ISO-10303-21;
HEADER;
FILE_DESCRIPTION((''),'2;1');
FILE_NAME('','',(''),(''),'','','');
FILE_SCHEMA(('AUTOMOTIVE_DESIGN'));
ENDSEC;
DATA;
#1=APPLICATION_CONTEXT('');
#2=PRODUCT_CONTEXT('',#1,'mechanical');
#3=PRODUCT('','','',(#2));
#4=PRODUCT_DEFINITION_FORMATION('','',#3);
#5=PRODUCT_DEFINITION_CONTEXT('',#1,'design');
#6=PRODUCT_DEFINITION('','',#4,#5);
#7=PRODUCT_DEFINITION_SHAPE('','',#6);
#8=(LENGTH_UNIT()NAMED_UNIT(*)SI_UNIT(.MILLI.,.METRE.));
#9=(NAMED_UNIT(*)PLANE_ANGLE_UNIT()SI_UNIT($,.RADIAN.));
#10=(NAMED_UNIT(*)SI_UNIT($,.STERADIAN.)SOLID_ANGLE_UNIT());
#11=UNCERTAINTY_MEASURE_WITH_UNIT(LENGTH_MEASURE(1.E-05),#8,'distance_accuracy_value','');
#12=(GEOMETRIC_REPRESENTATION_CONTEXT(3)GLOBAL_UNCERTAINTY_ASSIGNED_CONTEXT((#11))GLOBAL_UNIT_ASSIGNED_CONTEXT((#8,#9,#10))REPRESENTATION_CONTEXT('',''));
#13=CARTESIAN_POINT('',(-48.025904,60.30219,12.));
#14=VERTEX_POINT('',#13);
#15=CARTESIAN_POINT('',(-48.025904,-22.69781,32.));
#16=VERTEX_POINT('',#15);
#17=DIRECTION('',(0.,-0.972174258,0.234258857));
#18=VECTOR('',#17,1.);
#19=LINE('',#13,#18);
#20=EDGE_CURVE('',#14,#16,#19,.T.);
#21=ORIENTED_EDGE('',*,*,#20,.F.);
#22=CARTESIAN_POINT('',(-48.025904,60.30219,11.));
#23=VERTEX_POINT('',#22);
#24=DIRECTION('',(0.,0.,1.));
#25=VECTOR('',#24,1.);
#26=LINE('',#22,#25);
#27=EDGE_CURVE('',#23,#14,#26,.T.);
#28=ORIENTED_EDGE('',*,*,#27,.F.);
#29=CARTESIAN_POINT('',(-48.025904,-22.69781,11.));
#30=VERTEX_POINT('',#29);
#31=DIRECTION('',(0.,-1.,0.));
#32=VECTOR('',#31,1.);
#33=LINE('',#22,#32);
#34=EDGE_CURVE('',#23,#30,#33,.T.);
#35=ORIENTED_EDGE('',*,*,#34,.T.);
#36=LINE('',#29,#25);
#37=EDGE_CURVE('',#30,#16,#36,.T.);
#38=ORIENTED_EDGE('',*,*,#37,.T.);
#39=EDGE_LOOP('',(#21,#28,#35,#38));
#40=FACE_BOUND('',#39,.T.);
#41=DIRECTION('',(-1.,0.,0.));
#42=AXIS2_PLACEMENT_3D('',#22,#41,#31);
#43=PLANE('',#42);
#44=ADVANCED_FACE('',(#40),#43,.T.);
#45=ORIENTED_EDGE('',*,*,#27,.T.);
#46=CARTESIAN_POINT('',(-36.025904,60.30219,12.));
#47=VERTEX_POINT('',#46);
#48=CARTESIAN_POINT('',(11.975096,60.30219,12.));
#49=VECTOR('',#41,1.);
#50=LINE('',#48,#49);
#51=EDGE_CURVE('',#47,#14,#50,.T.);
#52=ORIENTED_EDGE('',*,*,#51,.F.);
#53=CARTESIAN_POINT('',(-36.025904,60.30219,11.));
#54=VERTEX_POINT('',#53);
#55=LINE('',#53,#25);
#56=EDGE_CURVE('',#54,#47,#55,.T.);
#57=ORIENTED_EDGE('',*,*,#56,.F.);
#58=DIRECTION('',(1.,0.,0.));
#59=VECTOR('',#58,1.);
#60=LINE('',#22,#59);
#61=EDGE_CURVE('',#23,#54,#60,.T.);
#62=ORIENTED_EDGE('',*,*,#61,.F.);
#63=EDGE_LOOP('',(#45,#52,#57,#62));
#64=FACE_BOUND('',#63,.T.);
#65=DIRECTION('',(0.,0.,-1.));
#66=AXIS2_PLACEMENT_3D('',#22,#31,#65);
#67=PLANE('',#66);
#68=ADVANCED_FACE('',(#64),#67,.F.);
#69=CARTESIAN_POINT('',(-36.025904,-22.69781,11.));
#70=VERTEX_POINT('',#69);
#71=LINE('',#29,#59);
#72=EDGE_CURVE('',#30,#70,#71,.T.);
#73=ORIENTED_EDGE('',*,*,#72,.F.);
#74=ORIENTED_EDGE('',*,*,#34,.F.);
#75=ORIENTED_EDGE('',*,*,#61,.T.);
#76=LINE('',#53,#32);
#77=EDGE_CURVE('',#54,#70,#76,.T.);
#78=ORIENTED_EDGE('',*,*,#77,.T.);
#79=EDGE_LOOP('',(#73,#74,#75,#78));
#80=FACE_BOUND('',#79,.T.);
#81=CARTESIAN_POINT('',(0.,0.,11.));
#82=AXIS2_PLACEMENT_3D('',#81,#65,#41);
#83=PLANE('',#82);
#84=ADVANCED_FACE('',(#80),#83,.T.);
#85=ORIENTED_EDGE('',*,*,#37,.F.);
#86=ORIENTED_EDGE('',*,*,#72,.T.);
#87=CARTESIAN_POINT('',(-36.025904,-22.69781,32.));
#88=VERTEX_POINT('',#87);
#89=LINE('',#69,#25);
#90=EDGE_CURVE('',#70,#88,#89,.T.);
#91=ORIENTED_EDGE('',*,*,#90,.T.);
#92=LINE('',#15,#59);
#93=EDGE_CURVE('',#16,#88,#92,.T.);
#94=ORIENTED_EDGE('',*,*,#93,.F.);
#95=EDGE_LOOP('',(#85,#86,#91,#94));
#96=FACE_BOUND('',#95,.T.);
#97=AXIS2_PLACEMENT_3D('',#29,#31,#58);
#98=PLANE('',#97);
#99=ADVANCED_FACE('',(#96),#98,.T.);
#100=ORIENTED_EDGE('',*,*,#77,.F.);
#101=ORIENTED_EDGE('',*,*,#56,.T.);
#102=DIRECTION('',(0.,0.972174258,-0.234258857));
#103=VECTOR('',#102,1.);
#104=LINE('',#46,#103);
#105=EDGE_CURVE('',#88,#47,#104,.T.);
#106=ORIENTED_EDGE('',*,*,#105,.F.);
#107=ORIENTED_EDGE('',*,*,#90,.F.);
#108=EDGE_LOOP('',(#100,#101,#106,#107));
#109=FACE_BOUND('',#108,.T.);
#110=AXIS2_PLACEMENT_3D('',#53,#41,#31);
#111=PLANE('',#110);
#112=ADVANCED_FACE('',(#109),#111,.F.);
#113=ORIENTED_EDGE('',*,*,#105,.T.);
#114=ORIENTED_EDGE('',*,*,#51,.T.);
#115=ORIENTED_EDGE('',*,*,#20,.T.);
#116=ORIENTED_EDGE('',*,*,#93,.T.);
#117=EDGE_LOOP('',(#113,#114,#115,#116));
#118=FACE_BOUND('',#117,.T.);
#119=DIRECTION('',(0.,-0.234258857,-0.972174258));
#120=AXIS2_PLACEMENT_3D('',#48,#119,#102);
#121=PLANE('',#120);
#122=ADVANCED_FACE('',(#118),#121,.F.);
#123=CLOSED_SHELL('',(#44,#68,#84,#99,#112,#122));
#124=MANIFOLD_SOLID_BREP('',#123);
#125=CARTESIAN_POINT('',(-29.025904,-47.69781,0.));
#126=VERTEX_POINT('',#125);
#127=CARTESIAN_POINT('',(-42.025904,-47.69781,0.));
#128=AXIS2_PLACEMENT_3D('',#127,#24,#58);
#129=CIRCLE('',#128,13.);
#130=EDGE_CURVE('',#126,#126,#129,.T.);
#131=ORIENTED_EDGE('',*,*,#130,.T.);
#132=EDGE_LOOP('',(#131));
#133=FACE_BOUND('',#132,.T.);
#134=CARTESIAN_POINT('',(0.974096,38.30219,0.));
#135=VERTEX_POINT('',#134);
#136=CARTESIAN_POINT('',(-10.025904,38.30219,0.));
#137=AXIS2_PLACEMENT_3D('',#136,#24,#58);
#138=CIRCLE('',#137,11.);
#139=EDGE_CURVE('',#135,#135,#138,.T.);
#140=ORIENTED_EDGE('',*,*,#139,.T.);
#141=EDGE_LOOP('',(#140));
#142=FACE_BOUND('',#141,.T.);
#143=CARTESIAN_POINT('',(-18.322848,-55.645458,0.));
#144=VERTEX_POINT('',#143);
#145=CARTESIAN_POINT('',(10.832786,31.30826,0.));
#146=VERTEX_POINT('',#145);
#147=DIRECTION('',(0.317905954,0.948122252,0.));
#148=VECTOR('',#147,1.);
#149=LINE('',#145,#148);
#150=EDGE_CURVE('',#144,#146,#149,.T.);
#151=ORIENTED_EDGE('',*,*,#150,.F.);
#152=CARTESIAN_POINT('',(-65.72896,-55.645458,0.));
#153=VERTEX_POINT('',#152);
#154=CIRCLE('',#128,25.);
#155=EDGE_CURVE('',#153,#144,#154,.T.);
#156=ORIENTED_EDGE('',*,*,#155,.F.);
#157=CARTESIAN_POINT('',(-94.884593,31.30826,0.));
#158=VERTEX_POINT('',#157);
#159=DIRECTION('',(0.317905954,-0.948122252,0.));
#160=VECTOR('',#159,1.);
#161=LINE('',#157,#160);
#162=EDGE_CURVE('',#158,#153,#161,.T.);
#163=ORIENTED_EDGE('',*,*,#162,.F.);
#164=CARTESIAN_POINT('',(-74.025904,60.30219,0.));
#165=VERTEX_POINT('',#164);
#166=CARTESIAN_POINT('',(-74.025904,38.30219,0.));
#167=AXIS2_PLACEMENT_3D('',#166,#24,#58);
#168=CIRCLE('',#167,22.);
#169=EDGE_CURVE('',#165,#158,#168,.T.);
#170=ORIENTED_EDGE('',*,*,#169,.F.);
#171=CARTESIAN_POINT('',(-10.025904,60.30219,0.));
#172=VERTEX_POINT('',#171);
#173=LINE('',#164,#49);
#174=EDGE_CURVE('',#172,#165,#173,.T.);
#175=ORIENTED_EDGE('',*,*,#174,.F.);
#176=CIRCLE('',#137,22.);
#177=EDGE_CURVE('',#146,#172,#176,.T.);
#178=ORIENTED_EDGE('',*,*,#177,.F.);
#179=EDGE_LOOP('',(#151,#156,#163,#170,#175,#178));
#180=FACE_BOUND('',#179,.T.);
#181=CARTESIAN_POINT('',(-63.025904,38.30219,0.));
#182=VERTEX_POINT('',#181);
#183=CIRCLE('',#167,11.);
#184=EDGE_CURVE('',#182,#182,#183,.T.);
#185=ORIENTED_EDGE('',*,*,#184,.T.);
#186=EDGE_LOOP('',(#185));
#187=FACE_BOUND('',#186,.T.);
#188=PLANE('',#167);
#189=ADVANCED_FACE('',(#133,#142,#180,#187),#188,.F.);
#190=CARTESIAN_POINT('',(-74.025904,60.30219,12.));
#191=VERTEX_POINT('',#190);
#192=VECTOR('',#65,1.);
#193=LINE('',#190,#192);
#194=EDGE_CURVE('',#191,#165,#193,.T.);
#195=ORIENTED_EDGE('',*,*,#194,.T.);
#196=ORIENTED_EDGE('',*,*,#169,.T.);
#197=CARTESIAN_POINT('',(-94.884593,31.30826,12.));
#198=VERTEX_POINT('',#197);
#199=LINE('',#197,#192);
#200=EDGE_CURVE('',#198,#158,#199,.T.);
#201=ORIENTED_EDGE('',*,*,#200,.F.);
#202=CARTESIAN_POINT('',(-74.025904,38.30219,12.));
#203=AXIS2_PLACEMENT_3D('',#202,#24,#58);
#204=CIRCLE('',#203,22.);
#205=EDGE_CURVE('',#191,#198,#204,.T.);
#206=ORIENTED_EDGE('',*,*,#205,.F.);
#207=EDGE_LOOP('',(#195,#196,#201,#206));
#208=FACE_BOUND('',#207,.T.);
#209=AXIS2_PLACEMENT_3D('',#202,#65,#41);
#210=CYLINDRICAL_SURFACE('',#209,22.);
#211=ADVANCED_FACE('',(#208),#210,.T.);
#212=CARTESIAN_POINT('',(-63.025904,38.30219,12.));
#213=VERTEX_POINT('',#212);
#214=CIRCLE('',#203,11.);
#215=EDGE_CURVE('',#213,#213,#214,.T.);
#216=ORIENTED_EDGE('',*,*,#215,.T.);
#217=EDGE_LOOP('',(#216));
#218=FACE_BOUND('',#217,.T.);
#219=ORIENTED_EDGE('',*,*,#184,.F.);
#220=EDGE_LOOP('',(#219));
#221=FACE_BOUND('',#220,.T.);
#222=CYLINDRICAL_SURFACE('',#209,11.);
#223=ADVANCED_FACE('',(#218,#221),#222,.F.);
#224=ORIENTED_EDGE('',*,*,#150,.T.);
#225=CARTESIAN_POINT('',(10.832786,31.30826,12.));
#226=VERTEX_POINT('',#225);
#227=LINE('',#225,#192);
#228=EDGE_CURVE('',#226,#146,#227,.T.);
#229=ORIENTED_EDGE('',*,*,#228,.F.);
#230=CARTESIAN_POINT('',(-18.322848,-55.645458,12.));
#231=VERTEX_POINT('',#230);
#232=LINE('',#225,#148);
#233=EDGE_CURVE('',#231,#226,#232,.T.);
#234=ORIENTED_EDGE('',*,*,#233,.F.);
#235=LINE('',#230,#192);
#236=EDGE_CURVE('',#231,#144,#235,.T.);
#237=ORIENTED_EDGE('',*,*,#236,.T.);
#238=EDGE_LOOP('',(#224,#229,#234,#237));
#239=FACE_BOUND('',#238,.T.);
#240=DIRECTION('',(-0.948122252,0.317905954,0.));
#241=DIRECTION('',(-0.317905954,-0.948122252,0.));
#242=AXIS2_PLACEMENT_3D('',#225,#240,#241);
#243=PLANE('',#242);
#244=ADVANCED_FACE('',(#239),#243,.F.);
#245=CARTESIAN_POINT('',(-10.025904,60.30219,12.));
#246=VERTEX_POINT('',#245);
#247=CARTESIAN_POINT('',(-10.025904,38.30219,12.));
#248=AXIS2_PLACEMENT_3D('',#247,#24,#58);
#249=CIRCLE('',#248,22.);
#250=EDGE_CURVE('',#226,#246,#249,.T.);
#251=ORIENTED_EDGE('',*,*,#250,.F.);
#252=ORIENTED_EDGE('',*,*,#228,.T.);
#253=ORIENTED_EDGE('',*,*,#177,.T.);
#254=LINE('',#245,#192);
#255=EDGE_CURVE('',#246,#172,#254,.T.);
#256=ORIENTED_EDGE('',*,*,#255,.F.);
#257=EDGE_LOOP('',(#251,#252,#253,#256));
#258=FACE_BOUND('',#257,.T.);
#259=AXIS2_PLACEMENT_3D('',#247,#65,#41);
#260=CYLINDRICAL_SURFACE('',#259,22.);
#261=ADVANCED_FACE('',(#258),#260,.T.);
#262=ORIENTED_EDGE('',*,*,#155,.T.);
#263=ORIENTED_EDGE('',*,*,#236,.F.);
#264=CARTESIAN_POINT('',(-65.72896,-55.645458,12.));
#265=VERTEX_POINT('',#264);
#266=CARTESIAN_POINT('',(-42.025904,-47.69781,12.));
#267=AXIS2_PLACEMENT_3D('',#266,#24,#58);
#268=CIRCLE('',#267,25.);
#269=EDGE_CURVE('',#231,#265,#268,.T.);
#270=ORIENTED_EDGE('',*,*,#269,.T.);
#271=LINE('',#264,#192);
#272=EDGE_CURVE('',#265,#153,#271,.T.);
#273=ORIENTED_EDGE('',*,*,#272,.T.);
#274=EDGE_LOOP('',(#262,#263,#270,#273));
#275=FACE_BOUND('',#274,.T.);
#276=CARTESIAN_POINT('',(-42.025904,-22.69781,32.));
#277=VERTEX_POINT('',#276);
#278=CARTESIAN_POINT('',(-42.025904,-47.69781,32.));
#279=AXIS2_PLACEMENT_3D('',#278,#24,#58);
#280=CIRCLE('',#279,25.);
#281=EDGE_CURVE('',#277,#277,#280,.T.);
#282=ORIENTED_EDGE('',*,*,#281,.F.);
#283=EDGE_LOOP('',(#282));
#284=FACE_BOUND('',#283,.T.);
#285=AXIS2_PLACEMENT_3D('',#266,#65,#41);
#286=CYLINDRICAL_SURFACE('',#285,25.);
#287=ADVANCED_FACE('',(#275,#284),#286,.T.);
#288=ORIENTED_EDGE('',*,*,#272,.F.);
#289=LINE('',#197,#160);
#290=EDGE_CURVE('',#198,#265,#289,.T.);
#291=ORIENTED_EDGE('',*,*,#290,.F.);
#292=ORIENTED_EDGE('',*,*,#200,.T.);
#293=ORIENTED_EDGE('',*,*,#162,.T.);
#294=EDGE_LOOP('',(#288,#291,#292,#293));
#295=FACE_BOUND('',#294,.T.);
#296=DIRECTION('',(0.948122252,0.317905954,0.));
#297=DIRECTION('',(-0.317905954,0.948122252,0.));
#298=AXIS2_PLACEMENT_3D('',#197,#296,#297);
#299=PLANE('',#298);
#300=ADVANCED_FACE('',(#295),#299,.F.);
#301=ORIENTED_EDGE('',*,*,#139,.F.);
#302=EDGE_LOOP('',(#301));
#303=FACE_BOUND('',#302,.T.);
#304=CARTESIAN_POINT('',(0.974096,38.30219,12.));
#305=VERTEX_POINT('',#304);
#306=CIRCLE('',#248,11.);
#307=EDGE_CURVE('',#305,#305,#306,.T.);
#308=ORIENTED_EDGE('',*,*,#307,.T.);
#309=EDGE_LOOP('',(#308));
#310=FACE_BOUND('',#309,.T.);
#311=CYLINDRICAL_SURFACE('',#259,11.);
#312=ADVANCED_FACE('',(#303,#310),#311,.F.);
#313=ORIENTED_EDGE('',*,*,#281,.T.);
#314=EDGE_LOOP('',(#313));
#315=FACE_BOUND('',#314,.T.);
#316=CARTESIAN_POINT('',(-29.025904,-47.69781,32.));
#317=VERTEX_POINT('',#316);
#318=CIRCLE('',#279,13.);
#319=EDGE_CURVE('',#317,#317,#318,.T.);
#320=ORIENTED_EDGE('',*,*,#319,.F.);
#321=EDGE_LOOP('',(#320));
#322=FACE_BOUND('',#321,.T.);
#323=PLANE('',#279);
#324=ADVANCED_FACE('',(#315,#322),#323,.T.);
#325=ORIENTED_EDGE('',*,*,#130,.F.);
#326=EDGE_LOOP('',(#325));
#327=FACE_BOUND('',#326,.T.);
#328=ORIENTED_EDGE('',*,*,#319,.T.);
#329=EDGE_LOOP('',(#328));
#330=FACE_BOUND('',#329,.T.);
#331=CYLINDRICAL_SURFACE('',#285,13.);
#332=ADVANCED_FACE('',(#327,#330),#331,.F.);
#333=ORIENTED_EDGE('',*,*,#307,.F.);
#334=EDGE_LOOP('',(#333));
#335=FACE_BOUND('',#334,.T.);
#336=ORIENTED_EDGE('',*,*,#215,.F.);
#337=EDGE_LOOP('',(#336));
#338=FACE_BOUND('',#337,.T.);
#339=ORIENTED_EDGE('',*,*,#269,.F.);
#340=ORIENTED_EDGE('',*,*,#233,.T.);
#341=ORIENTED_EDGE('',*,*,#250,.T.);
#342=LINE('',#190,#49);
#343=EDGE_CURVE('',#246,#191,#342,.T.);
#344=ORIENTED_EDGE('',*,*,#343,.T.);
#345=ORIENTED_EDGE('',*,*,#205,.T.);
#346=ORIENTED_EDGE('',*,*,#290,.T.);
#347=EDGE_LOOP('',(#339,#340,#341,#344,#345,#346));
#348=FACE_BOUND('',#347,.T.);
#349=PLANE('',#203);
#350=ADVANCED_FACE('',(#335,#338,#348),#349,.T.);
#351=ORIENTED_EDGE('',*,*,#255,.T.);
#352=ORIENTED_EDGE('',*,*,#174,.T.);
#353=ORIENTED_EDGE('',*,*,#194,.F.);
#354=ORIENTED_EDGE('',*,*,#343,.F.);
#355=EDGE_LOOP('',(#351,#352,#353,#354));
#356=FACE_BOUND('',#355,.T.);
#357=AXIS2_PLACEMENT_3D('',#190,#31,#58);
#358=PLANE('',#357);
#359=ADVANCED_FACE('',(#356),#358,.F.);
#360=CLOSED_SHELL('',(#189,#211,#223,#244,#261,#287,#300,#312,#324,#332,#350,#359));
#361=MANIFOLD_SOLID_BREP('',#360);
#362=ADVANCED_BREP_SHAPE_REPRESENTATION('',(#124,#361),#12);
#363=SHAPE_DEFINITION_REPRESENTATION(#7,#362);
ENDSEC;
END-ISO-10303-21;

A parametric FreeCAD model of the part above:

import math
import FreeCAD as App
import Part
import Sketcher

V = App.Vector
Q = App.Units.Quantity

doc = App.newDocument("Part")
body = doc.addObject("PartDesign::Body", "Body")

# Sketch on XY plane
sketch1 = body.newObject("Sketcher::SketchObject", "Sketch")
sketch1.AttachmentSupport = (doc.getObject("XY_Plane"), [""])
sketch1.MapMode = "FlatFace"
sketch1.addGeometry([
    Part.LineSegment(V(-10.025904, 60.30219, 0), V(-74.025904, 60.30219, 0)),  # 0
    Part.ArcOfCircle(Part.Circle(V(-74.025904, 38.30219, 0), V(0, 0, 1), 22), math.radians(90), math.radians(198.536333)),  # 1
    Part.LineSegment(V(-94.884593, 31.308259, 0), V(-65.72896, -55.645458, 0)),  # 2
    Part.ArcOfCircle(Part.Circle(V(-42.025904, -47.69781, 0), V(0, 0, 1), 25), math.radians(-161.463667), math.radians(-18.536333)),  # 3
    Part.LineSegment(V(-18.322848, -55.645458, 0), V(10.832786, 31.308259, 0)),  # 4
    Part.ArcOfCircle(Part.Circle(V(-10.025904, 38.30219, 0), V(0, 0, 1), 22), math.radians(-18.536333), math.radians(90)),  # 5
    Part.Circle(V(-42.025904, -47.69781, 0), V(0, 0, 1), 13),  # 6
    Part.Circle(V(-10.025904, 38.30219, 0), V(0, 0, 1), 11),  # 7
    Part.Circle(V(-74.025904, 38.30219, 0), V(0, 0, 1), 11),  # 8
], False)
sketch1.addConstraint([
    Sketcher.Constraint("Tangent", 0, 2, 1, 1),
    Sketcher.Constraint("Tangent", 1, 2, 2, 1),
    Sketcher.Constraint("Tangent", 2, 2, 3, 1),
    Sketcher.Constraint("Tangent", 3, 2, 4, 1),
    Sketcher.Constraint("Tangent", 4, 2, 5, 1),
    Sketcher.Constraint("Tangent", 5, 2, 0, 1),
    Sketcher.Constraint("Horizontal", 0),
    Sketcher.Constraint("Coincident", 6, 3, 3, 3),
    Sketcher.Constraint("Coincident", 7, 3, 5, 3),
    Sketcher.Constraint("Coincident", 8, 3, 1, 3),
    Sketcher.Constraint("Equal", 1, 5),
    Sketcher.Constraint("Equal", 7, 8),
    Sketcher.Constraint("Horizontal", 2, 2, 3, 2),
    Sketcher.Constraint("Diameter", 6, Q("26 mm")),
    Sketcher.Constraint("Diameter", 7, Q("22 mm")),
    Sketcher.Constraint("Radius", 1, Q("22 mm")),
    Sketcher.Constraint("Radius", 3, Q("25 mm")),
    Sketcher.Constraint("DistanceX", 0, 2, 0, 1, Q("64 mm")),
    Sketcher.Constraint("DistanceY", 3, 3, 1, 3, Q("86 mm")),
    Sketcher.Constraint("DistanceY", -1, 1, 1, 3, Q("38.30219 mm")),
    Sketcher.Constraint("DistanceX", 2, 2, -1, 1, Q("65.72896 mm")),
])
pad1 = body.newObject("PartDesign::Pad", "Pad")
pad1.Profile = sketch1
pad1.Length = 12

# Sketch on XY plane
sketch2 = body.newObject("Sketcher::SketchObject", "Sketch001")
sketch2.AttachmentSupport = (doc.getObject("XY_Plane"), [""])
sketch2.MapMode = "FlatFace"
sketch2.AttachmentOffset = App.Placement(V(0, 0, 12), App.Rotation())
sketch2.addGeometry(Part.Circle(V(-42.025904, -47.69781, 0), V(0, 0, 1), 25), False)
sketch2.addConstraint([
    Sketcher.Constraint("Diameter", 0, Q("50 mm")),
    Sketcher.Constraint("DistanceY", 0, 3, -1, 1, Q("47.69781 mm")),
    Sketcher.Constraint("DistanceX", 0, 3, -1, 1, Q("42.025904 mm")),
])
pad2 = body.newObject("PartDesign::Pad", "Pad001")
pad2.Profile = sketch2
pad2.Length = 20

# Sketch on XY plane
sketch3 = body.newObject("Sketcher::SketchObject", "Sketch002")
sketch3.AttachmentSupport = (doc.getObject("XY_Plane"), [""])
sketch3.MapMode = "FlatFace"
sketch3.AttachmentOffset = App.Placement(V(0, 0, 32), App.Rotation())
sketch3.addGeometry(Part.Circle(V(-42.025904, -47.69781, 0), V(0, 0, 1), 13), False)
sketch3.addConstraint([
    Sketcher.Constraint("Diameter", 0, Q("26 mm")),
    Sketcher.Constraint("DistanceY", 0, 3, -1, 1, Q("47.69781 mm")),
    Sketcher.Constraint("DistanceX", 0, 3, -1, 1, Q("42.025904 mm")),
])
pocket1 = body.newObject("PartDesign::Pocket", "Pocket")
pocket1.Profile = sketch3
pocket1.Type = "UpToFirst"
body2 = doc.addObject("PartDesign::Body", "Body001")

# Sketch on XY plane
sketch4 = body2.newObject("Sketcher::SketchObject", "Sketch003")
sketch4.AttachmentSupport = (doc.getObject("XY_Plane001"), [""])
sketch4.MapMode = "FlatFace"
sketch4.AttachmentOffset = App.Placement(V(0, 0, 12), App.Rotation())
sketch4.addGeometry([
    Part.LineSegment(V(-48.025904, 60.30219, 0), V(-48.025904, -22.69781, 0)),
    Part.LineSegment(V(-48.025904, -22.69781, 0), V(-36.025904, -22.69781, 0)),
    Part.LineSegment(V(-36.025904, -22.69781, 0), V(-36.025904, 60.30219, 0)),
    Part.LineSegment(V(-36.025904, 60.30219, 0), V(-48.025904, 60.30219, 0)),
], False)
sketch4.addConstraint([
    Sketcher.Constraint("Coincident", 0, 2, 1, 1),
    Sketcher.Constraint("Coincident", 1, 2, 2, 1),
    Sketcher.Constraint("Coincident", 2, 2, 3, 1),
    Sketcher.Constraint("Coincident", 3, 2, 0, 1),
    Sketcher.Constraint("Vertical", 0),
    Sketcher.Constraint("Horizontal", 1),
    Sketcher.Constraint("Vertical", 2),
    Sketcher.Constraint("Horizontal", 3),
    Sketcher.Constraint("DistanceX", 1, 1, 1, 2, Q("12 mm")),
    Sketcher.Constraint("DistanceY", 0, 2, 0, 1, Q("83 mm")),
    Sketcher.Constraint("DistanceY", 0, 2, -1, 1, Q("22.69781 mm")),
    Sketcher.Constraint("DistanceX", 0, 2, -1, 1, Q("48.025904 mm")),
])
pad3 = body2.newObject("PartDesign::Pad", "Pad002")
pad3.Profile = sketch4
pad3.Type = "TwoLengths"
pad3.Length = 20
pad3.Length2 = 1

# Sketch on YZ plane
sketch5 = body2.newObject("Sketcher::SketchObject", "Sketch004")
sketch5.AttachmentSupport = (doc.getObject("YZ_Plane001"), [""])
sketch5.MapMode = "FlatFace"
sketch5.AttachmentOffset = App.Placement(V(0, 0, -48.025904), App.Rotation())
sketch5.addGeometry([
    Part.LineSegment(V(60.30219, 12, 0), V(-22.69781, 32, 0)),
    Part.LineSegment(V(-22.69781, 32, 0), V(60.30219, 32, 0)),
    Part.LineSegment(V(60.30219, 32, 0), V(60.30219, 12, 0)),
], False)
sketch5.addConstraint([
    Sketcher.Constraint("Coincident", 0, 2, 1, 1),
    Sketcher.Constraint("Coincident", 1, 2, 2, 1),
    Sketcher.Constraint("Coincident", 2, 2, 0, 1),
    Sketcher.Constraint("Horizontal", 1),
    Sketcher.Constraint("Vertical", 2),
    Sketcher.Constraint("DistanceX", 1, 1, 1, 2, Q("83 mm")),
    Sketcher.Constraint("DistanceY", 2, 2, 2, 1, Q("20 mm")),
    Sketcher.Constraint("DistanceY", -1, 1, 0, 2, Q("32 mm")),
    Sketcher.Constraint("DistanceX", 0, 2, -1, 1, Q("22.69781 mm")),
])
pocket2 = body2.newObject("PartDesign::Pocket", "Pocket001")
pocket2.Profile = sketch5
pocket2.Length = 12
pocket2.Reversed = True

doc.recompute()
